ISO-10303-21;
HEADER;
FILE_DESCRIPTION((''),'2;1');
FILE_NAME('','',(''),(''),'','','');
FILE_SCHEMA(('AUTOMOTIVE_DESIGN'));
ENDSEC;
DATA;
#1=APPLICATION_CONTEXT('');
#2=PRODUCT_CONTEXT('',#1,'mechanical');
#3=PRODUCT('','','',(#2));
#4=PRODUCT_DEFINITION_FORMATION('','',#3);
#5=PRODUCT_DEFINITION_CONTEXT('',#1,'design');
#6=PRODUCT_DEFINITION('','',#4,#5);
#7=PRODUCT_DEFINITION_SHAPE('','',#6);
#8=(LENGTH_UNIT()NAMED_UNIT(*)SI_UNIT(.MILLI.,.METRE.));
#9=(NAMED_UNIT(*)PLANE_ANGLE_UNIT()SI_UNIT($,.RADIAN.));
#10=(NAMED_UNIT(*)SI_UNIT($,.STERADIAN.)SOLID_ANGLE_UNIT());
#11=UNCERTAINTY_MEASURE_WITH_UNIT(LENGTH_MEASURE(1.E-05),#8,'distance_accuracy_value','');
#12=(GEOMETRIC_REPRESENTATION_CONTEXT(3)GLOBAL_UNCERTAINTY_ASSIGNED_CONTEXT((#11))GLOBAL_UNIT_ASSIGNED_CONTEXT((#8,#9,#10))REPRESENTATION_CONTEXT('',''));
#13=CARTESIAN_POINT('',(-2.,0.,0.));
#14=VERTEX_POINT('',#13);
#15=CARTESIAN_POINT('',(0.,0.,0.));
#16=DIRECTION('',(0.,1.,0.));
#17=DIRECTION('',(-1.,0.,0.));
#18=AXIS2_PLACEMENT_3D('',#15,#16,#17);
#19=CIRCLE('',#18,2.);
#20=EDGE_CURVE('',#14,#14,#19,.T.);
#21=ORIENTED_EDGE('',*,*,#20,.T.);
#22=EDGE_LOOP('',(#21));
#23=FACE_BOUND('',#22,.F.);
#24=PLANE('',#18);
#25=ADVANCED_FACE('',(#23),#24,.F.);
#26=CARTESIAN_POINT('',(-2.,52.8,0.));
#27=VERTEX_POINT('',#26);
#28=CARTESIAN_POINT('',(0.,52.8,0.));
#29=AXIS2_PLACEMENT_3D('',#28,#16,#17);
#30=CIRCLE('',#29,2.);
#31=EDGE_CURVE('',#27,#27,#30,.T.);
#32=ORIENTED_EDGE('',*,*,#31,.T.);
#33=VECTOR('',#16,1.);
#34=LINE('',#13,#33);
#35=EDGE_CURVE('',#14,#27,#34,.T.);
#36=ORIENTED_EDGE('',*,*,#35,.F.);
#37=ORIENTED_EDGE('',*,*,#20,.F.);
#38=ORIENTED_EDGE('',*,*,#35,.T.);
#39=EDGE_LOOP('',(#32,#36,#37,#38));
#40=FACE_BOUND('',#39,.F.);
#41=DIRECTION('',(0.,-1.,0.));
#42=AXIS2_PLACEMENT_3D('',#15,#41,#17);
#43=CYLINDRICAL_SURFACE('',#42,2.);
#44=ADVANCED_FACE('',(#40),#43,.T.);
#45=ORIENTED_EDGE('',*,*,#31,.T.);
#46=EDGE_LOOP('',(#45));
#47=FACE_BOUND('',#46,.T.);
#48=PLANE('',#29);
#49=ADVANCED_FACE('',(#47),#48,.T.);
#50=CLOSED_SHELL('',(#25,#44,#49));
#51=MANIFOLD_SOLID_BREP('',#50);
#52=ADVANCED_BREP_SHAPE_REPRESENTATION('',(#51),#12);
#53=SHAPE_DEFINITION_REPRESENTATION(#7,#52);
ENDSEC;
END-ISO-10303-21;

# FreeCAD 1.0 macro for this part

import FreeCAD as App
import Part
import Sketcher

V = App.Vector
Q = App.Units.Quantity

doc = App.newDocument("Part")
body = doc.addObject("PartDesign::Body", "Body")

sketch1 = doc.addObject("Sketcher::SketchObject", "Sketch")
body.addObject(sketch1)
sketch1.AttachmentSupport = (doc.XZ_Plane, [""])
sketch1.MapMode = "FlatFace"
sketch1.addGeometry(Part.Circle(V(0, 0, 0), V(0, 0, 1), 2), False)
sketch1.addConstraint([
    Sketcher.Constraint("Coincident", 0, 3, -1, 1),
    Sketcher.Constraint("Diameter", 0, Q("4 mm")),
])
pad1 = doc.addObject("PartDesign::Pad", "Pad")
body.addObject(pad1)
pad1.Profile = sketch1
pad1.Length = 52.8
pad1.Reversed = True

doc.recompute()
